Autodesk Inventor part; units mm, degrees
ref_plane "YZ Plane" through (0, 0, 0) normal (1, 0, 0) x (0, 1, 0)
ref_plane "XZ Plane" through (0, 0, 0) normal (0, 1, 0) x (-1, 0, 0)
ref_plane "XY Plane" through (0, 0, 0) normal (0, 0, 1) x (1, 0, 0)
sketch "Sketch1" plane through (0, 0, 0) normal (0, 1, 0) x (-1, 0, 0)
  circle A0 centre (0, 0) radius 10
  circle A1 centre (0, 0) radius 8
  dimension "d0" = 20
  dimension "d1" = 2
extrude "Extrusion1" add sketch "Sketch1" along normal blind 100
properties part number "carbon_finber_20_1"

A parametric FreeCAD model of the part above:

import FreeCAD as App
import Part
import Sketcher
from FreeCAD import Vector

doc = App.newDocument("Part")
body = doc.addObject("PartDesign::Body", "Body")

# Sketch on XZ plane
sketch1 = body.newObject("Sketcher::SketchObject", "Sketch")
sketch1.AttachmentSupport = (doc.getObject("XZ_Plane"), [""])
sketch1.MapMode = "FlatFace"
sketch1.addGeometry([
    Part.Circle(Vector(0, 0, 0), Vector(0, 0, 1), 10),
    Part.Circle(Vector(0, 0, 0), Vector(0, 0, 1), 8),
], False)
sketch1.addConstraint([
    Sketcher.Constraint("Coincident", 0, 3, -1, 1),
    Sketcher.Constraint("Coincident", 1, 3, -1, 1),
    Sketcher.Constraint("Diameter", 0, 20.0),
    Sketcher.Constraint("Diameter", 1, 16.0),
])
pad1 = body.newObject("PartDesign::Pad", "Pad")
pad1.Profile = sketch1
pad1.Length = 100
pad1.Reversed = True

doc.recompute()
